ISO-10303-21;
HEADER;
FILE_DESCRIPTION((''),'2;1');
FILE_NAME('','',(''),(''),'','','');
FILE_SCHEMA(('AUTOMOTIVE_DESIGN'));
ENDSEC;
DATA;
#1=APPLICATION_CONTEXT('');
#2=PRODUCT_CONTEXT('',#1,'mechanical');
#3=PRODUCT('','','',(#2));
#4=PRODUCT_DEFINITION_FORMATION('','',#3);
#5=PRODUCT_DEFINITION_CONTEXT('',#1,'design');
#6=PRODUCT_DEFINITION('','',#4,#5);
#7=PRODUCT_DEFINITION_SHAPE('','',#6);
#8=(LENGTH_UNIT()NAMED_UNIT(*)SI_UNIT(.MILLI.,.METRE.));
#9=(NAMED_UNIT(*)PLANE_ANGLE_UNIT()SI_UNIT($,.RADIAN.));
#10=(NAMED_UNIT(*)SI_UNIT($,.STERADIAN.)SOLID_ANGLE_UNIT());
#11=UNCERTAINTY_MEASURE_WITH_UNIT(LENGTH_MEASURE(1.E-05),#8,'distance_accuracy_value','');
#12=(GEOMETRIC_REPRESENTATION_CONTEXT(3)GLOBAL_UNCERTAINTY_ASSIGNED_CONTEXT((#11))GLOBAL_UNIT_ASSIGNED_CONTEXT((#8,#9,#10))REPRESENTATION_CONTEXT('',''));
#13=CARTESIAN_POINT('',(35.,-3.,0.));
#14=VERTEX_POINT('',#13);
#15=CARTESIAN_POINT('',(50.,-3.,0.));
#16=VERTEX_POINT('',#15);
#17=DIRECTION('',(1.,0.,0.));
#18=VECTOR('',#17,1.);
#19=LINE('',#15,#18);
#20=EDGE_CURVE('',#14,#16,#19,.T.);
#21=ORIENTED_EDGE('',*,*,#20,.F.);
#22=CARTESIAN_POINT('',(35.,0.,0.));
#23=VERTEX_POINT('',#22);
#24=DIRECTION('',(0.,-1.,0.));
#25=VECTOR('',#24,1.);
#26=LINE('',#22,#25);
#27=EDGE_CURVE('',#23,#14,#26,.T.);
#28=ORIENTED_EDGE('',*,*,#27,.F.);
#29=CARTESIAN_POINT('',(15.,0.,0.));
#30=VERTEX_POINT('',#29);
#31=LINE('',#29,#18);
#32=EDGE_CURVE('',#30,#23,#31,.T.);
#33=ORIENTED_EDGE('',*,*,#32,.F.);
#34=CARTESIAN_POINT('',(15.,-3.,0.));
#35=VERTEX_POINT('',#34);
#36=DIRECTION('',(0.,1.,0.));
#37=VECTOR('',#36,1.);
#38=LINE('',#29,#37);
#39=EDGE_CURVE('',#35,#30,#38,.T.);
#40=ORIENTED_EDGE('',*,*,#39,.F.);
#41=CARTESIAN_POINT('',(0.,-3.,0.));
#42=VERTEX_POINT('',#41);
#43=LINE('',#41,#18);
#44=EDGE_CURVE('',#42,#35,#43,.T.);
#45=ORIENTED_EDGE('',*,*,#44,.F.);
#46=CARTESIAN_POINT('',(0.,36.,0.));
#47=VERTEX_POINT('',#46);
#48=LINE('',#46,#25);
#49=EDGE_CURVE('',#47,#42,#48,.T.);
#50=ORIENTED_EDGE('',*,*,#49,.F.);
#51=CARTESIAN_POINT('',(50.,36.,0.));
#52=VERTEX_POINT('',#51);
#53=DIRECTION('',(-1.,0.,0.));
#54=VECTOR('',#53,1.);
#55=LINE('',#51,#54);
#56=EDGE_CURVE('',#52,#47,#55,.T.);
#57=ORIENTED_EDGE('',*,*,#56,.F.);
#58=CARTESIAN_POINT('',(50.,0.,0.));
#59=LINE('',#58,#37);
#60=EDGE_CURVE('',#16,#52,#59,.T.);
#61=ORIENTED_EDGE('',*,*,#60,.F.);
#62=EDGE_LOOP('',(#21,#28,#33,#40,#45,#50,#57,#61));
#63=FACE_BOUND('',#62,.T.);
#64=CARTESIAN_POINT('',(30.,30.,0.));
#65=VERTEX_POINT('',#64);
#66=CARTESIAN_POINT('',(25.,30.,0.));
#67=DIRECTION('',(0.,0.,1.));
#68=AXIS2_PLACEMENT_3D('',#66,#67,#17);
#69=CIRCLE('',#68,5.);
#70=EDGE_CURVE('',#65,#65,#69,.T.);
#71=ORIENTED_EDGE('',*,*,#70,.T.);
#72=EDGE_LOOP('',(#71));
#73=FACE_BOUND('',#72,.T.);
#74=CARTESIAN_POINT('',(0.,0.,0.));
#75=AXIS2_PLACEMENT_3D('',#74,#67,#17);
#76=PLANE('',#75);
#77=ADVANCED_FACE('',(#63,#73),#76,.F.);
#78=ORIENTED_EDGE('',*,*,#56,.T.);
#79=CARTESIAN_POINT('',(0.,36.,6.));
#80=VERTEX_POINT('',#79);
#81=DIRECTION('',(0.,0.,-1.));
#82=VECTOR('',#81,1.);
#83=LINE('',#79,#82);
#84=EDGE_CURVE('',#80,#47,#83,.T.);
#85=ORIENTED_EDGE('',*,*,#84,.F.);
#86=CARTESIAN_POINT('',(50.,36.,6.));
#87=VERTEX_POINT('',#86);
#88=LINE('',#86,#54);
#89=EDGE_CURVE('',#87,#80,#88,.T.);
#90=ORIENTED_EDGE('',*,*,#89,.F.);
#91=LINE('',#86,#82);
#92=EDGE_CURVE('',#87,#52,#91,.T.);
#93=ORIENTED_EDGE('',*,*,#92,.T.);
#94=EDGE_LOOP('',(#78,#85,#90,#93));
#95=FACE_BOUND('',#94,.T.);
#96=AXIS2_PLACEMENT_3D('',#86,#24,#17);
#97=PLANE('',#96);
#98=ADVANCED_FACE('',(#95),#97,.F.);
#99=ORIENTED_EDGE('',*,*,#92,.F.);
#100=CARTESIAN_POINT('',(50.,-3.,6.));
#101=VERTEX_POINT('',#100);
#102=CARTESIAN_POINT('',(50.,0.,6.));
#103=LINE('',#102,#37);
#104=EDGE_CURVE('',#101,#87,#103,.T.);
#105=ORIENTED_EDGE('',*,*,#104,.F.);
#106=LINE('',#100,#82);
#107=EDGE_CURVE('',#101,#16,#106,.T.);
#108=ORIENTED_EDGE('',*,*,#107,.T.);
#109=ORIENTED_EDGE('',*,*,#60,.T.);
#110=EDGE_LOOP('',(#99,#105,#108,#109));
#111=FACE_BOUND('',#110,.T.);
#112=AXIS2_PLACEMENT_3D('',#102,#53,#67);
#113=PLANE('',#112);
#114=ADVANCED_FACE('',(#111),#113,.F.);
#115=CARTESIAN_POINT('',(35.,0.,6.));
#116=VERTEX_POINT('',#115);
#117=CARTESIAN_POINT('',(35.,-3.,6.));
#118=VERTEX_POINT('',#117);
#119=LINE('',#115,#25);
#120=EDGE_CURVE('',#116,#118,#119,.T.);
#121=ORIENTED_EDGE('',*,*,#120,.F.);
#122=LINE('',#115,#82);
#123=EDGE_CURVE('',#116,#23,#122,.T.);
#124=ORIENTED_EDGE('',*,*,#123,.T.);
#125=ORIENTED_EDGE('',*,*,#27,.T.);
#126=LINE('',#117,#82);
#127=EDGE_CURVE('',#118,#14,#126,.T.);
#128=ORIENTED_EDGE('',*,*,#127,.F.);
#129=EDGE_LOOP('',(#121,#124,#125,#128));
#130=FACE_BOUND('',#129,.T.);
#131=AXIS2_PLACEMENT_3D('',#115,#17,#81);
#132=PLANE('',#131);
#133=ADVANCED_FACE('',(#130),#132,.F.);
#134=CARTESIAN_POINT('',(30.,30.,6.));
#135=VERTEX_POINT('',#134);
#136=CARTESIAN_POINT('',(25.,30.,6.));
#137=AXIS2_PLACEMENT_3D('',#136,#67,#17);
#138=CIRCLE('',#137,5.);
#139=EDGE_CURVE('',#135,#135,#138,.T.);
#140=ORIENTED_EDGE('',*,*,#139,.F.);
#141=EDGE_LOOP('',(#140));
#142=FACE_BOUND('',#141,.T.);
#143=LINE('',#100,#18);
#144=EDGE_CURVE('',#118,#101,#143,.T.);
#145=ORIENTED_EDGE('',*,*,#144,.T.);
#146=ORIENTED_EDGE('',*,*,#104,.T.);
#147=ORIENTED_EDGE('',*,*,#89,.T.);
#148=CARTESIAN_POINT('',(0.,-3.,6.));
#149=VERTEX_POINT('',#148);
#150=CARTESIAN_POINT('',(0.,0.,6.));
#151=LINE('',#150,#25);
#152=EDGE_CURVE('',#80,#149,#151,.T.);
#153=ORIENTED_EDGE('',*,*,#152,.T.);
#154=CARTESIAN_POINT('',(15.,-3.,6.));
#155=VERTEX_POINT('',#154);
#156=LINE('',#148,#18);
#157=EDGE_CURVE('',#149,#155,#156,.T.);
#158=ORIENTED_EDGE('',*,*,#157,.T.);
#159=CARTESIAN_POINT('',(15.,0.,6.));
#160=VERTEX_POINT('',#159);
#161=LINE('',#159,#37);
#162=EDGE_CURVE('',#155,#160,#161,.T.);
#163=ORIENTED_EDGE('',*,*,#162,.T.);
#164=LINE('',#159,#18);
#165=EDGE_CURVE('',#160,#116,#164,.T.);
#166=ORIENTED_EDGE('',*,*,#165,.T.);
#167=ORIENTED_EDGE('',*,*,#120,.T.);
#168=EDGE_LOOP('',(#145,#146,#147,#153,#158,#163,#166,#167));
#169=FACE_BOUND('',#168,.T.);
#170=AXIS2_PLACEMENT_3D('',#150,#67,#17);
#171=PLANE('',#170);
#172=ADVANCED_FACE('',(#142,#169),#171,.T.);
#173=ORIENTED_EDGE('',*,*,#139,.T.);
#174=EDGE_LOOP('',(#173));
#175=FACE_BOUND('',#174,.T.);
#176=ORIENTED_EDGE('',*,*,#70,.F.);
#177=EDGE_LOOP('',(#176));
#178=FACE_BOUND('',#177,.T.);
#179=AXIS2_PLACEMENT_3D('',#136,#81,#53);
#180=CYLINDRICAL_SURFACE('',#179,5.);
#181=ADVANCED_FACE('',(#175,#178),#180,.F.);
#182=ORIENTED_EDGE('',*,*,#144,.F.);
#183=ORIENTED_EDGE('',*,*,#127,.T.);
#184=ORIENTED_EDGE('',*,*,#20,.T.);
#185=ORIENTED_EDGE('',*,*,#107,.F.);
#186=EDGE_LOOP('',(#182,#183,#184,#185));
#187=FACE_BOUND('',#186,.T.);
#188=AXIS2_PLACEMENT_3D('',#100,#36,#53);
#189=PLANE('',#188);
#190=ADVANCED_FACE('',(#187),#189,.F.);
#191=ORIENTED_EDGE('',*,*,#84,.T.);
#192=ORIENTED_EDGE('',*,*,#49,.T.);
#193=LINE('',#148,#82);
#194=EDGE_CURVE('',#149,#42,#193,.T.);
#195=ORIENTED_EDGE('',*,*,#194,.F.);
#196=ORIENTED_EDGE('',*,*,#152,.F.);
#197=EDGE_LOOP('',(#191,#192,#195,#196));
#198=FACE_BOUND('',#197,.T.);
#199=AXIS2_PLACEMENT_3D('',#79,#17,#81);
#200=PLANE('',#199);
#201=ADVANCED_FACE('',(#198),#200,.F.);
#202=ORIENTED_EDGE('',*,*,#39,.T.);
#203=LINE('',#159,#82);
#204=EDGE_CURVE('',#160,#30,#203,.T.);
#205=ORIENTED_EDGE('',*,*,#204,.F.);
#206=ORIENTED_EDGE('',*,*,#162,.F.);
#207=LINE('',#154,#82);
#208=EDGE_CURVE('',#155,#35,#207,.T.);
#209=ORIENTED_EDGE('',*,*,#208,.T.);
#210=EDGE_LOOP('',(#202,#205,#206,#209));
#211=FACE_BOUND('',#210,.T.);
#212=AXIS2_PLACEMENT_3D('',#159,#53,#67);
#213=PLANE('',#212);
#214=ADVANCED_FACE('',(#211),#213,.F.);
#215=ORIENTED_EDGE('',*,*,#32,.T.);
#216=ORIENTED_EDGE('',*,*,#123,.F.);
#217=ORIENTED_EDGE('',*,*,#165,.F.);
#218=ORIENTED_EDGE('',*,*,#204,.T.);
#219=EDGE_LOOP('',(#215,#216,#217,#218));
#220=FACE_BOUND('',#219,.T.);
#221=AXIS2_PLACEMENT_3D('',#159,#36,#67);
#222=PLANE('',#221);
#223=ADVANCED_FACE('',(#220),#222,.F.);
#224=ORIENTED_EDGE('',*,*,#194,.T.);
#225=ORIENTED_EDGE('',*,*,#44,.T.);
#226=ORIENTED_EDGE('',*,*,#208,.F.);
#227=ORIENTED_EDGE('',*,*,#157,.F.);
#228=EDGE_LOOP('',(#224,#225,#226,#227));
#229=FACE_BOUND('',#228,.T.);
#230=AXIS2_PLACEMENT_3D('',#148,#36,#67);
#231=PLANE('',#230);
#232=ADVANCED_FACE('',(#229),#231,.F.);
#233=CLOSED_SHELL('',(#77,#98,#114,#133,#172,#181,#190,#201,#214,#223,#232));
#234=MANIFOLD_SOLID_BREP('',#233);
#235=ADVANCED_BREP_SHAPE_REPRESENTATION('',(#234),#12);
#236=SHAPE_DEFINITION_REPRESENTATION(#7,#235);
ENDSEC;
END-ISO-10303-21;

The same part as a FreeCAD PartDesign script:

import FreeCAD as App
import Part
import Sketcher
Q = App.Units.Quantity

doc = App.newDocument("Part")
body = doc.addObject("PartDesign::Body", "Body")

# Sketch on XY plane
sketch1 = body.newObject("Sketcher::SketchObject", "Sketch")
sketch1.AttachmentSupport = (doc.getObject("XY_Plane"), [""])
sketch1.MapMode = "FlatFace"
sketch1.addGeometry([
    Part.LineSegment(App.Vector(15, 0, 0), App.Vector(35, 0, 0)),  # 0
    Part.LineSegment(App.Vector(35, 0, 0), App.Vector(35, -3, 0)),  # 1
    Part.LineSegment(App.Vector(35, -3, 0), App.Vector(50, -3, 0)),  # 2
    Part.LineSegment(App.Vector(50, -3, 0), App.Vector(50, 36, 0)),  # 3
    Part.LineSegment(App.Vector(50, 36, 0), App.Vector(0, 36, 0)),  # 4
    Part.LineSegment(App.Vector(0, 36, 0), App.Vector(0, -3, 0)),  # 5
    Part.LineSegment(App.Vector(0, -3, 0), App.Vector(15, -3, 0)),  # 6
    Part.LineSegment(App.Vector(15, -3, 0), App.Vector(15, 0, 0)),  # 7
    Part.Circle(App.Vector(25, 30, 0), App.Vector(0, 0, 1), 5),  # 8
], False)
sketch1.addConstraint([
    Sketcher.Constraint("Coincident", 0, 2, 1, 1),
    Sketcher.Constraint("Coincident", 1, 2, 2, 1),
    Sketcher.Constraint("Coincident", 2, 2, 3, 1),
    Sketcher.Constraint("Coincident", 3, 2, 4, 1),
    Sketcher.Constraint("Coincident", 4, 2, 5, 1),
    Sketcher.Constraint("Coincident", 5, 2, 6, 1),
    Sketcher.Constraint("Coincident", 6, 2, 7, 1),
    Sketcher.Constraint("Coincident", 7, 2, 0, 1),
    Sketcher.Constraint("Horizontal", 0),
    Sketcher.Constraint("Vertical", 1),
    Sketcher.Constraint("Horizontal", 2),
    Sketcher.Constraint("Vertical", 3),
    Sketcher.Constraint("Horizontal", 4),
    Sketcher.Constraint("Vertical", 5),
    Sketcher.Constraint("Horizontal", 6),
    Sketcher.Constraint("Vertical", 7),
    Sketcher.Constraint("PointOnObject", 0, 2, -1),
    Sketcher.Constraint("PointOnObject", 4, 2, -2),
    Sketcher.Constraint("Horizontal", 2, 2, 5, 2),
    Sketcher.Constraint("Equal", 2, 6),
    Sketcher.Constraint("Diameter", 8, Q("10 mm")),
    Sketcher.Constraint("DistanceX", 0, 1, 0, 2, Q("20 mm")),
    Sketcher.Constraint("DistanceX", 2, 1, 2, 2, Q("15 mm")),
    Sketcher.Constraint("DistanceY", 1, 2, 1, 1, Q("3 mm")),
    Sketcher.Constraint("DistanceY", 3, 1, 3, 2, Q("39 mm")),
    Sketcher.Constraint("DistanceX", -1, 1, 8, 3, Q("25 mm")),
    Sketcher.Constraint("DistanceY", -1, 1, 8, 3, Q("30 mm")),
])
pad1 = body.newObject("PartDesign::Pad", "Pad")
pad1.Profile = sketch1
pad1.Length = 6

doc.recompute()
